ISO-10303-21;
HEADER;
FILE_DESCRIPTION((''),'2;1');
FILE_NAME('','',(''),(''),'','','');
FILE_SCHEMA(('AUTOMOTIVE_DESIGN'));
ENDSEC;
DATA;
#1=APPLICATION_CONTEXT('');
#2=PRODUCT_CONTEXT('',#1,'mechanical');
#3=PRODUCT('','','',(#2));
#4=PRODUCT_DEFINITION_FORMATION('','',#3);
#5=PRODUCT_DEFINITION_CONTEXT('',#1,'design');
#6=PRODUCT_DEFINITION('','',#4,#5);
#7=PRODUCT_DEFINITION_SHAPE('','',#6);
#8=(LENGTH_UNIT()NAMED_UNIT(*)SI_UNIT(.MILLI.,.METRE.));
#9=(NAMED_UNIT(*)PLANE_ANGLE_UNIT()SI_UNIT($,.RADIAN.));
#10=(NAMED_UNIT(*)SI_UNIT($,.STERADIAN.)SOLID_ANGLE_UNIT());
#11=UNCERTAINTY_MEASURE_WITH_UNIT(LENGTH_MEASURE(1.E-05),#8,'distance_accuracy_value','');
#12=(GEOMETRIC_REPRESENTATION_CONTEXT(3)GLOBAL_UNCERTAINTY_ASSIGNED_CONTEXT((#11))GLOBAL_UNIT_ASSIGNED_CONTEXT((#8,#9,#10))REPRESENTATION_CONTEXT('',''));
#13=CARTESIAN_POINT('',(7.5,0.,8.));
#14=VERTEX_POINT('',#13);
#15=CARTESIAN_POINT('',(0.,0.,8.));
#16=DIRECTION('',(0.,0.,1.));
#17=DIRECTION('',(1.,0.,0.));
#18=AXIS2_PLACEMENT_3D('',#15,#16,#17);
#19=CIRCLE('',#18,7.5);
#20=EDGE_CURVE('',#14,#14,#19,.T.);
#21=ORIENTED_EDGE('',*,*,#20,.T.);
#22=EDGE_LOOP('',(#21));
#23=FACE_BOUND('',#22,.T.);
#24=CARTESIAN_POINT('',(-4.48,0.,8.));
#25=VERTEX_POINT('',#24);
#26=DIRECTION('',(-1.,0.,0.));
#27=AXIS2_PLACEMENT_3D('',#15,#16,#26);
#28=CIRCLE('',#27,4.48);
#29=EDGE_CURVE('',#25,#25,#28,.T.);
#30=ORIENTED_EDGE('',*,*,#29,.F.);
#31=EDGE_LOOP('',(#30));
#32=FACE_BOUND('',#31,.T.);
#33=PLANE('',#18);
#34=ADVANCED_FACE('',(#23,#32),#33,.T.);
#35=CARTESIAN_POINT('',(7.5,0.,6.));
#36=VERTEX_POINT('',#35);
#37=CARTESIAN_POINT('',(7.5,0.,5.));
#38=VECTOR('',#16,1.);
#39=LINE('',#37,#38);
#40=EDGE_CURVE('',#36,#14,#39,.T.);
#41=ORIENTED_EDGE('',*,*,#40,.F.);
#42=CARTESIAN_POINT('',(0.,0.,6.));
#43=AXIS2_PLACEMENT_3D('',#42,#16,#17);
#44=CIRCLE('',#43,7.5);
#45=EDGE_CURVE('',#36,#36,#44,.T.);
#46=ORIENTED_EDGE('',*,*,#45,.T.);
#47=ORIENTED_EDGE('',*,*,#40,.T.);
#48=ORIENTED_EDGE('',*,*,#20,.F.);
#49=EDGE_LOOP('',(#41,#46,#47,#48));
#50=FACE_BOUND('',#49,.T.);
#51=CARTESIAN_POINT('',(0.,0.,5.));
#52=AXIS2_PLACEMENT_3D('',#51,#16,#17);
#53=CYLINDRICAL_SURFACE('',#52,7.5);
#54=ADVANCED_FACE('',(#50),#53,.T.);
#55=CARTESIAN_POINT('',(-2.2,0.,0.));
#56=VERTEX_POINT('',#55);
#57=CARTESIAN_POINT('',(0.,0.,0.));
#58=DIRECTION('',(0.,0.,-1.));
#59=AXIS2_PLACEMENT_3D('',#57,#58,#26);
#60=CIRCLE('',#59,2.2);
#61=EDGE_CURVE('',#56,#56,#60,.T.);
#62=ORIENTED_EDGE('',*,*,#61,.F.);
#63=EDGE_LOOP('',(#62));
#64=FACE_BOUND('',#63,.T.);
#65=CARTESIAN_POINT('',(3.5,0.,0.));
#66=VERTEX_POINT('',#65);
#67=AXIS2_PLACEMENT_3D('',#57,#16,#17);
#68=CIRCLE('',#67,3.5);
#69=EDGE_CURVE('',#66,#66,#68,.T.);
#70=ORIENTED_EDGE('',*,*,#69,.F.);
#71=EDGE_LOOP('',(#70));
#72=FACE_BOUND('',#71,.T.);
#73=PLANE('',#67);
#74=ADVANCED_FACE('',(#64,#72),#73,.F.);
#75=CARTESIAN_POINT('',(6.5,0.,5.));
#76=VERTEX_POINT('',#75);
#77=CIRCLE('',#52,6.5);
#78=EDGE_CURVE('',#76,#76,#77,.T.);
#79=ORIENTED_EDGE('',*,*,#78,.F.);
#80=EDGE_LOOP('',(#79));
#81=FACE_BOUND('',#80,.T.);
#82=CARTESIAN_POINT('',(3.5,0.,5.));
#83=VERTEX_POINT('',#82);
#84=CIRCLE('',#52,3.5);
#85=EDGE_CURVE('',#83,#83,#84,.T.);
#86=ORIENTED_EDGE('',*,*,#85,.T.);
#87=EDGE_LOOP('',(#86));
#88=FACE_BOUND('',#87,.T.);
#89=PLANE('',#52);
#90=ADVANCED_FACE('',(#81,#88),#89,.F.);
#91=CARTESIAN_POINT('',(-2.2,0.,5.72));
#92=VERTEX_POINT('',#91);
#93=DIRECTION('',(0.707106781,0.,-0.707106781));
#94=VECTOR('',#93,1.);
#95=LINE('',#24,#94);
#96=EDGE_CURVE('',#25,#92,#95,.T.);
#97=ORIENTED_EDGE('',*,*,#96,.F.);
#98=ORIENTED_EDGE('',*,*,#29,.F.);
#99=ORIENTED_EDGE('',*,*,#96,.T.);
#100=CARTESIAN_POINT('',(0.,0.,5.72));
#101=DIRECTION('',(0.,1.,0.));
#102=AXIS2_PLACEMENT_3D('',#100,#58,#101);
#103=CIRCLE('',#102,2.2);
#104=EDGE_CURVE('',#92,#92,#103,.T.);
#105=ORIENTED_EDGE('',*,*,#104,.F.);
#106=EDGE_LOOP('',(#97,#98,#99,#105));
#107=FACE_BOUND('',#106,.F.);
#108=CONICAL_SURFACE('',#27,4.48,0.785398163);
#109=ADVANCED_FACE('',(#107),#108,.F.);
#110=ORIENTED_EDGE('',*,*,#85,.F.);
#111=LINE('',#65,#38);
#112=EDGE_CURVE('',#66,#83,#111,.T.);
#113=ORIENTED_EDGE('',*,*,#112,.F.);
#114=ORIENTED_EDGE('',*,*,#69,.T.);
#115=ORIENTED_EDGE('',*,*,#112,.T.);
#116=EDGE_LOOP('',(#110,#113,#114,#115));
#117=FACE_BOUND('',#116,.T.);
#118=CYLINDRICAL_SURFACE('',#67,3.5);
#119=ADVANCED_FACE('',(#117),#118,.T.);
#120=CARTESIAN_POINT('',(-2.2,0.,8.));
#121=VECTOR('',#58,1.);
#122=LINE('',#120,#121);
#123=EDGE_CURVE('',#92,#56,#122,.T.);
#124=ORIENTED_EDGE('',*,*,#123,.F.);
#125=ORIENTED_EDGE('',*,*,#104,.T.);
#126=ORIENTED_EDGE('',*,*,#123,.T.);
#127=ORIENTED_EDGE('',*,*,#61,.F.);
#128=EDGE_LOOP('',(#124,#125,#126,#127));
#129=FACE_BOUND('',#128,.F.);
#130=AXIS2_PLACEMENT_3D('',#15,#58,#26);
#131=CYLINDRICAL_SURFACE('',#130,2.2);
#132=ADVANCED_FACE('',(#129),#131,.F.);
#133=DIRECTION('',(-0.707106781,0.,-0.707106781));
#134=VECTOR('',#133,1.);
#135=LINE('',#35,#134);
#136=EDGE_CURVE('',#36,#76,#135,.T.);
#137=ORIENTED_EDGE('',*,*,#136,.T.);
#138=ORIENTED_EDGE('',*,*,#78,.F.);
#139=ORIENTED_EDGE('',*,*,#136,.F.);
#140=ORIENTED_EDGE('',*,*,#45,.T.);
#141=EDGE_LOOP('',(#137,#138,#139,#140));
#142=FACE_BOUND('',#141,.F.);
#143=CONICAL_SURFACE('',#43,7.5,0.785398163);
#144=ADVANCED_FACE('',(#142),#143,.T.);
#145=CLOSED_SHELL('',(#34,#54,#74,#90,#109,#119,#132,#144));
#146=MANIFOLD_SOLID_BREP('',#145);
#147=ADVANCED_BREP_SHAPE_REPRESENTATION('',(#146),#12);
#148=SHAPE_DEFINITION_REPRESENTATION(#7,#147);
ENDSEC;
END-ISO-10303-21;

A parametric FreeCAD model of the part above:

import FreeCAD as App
import Part
import Sketcher


def edges_at(feature, points):
    """Names of the edges that pass closest to the given points."""
    edges = feature.Shape.Edges
    near = lambda p: min(range(len(edges)), key=lambda i: edges[i].distToShape(Part.Vertex(*p))[0])
    return sorted({f"Edge{near(p) + 1}" for p in points})


def add_polygon(sketch, points):
    """Adds a closed chain of lines whose ends are joined by coincident constraints."""
    first, n = sketch.GeometryCount, len(points)
    for a, b in zip(points, points[1:] + points[:1]):
        sketch.addGeometry(Part.LineSegment(App.Vector(*a, 0), App.Vector(*b, 0)), False)
    for i in range(n):
        sketch.addConstraint(Sketcher.Constraint("Coincident", first + i, 2, first + (i + 1) % n, 1))

doc = App.newDocument("Part")
body = doc.addObject("PartDesign::Body", "Body")

# Sketch on XZ plane
sketch1 = body.newObject("Sketcher::SketchObject", "Sketch")
sketch1.AttachmentSupport = (doc.getObject("XZ_Plane"), [""])
sketch1.MapMode = "FlatFace"
add_polygon(sketch1, [(0, 8), (0, 0), (3.5, 0), (3.5, 5), (7.5, 5), (7.5, 8)])  # lines 0-5
sketch1.addConstraint([
    Sketcher.Constraint("Vertical", 0),
    Sketcher.Constraint("Horizontal", 1),
    Sketcher.Constraint("Vertical", 2),
    Sketcher.Constraint("Horizontal", 3),
    Sketcher.Constraint("Vertical", 4),
    Sketcher.Constraint("Horizontal", 5),
    Sketcher.Constraint("Coincident", 0, 2, -1, 1),
    Sketcher.Constraint("DistanceX", 3, 1, 3, 2, 4.0),
    Sketcher.Constraint("DistanceY", 0, 2, 0, 1, 8.0),
    Sketcher.Constraint("DistanceY", 2, 1, 2, 2, 5.0),
    Sketcher.Constraint("DistanceX", 1, 1, 1, 2, 3.5),
])
revolution = body.newObject("PartDesign::Revolution", "Revolution")
revolution.Profile = sketch1
revolution.ReferenceAxis = (sketch1, ["V_Axis"])
revolution.Angle = 360

# Sketch on XY plane
sketch2 = body.newObject("Sketcher::SketchObject", "Sketch001")
sketch2.AttachmentSupport = (doc.getObject("XY_Plane"), [""])
sketch2.MapMode = "FlatFace"
sketch2.AttachmentOffset = App.Placement(App.Vector(0, 0, 8), App.Rotation())
sketch2.addGeometry(Part.Circle(App.Vector(0, 0, 0), App.Vector(0, 0, 1), 2.2), False)
sketch2.addConstraint([
    Sketcher.Constraint("Coincident", 0, 3, -1, 1),
    Sketcher.Constraint("Diameter", 0, 4.4),
])
doc.recompute()
hole = body.newObject("PartDesign::Hole", "Hole")
hole.Profile = sketch2
hole.ThreadType = "None"
hole.Diameter = 4.4
hole.DepthType = "ThroughAll"
hole.HoleCutType = "Countersink"
hole.HoleCutDiameter = 8.96
hole.HoleCutCountersinkAngle = 90
doc.recompute()

chamfer = body.newObject("PartDesign::Chamfer", "Chamfer")
chamfer.Base = (hole, edges_at(hole, [(-7.5, 0, 5)]))
chamfer.Size = 1

doc.recompute()
